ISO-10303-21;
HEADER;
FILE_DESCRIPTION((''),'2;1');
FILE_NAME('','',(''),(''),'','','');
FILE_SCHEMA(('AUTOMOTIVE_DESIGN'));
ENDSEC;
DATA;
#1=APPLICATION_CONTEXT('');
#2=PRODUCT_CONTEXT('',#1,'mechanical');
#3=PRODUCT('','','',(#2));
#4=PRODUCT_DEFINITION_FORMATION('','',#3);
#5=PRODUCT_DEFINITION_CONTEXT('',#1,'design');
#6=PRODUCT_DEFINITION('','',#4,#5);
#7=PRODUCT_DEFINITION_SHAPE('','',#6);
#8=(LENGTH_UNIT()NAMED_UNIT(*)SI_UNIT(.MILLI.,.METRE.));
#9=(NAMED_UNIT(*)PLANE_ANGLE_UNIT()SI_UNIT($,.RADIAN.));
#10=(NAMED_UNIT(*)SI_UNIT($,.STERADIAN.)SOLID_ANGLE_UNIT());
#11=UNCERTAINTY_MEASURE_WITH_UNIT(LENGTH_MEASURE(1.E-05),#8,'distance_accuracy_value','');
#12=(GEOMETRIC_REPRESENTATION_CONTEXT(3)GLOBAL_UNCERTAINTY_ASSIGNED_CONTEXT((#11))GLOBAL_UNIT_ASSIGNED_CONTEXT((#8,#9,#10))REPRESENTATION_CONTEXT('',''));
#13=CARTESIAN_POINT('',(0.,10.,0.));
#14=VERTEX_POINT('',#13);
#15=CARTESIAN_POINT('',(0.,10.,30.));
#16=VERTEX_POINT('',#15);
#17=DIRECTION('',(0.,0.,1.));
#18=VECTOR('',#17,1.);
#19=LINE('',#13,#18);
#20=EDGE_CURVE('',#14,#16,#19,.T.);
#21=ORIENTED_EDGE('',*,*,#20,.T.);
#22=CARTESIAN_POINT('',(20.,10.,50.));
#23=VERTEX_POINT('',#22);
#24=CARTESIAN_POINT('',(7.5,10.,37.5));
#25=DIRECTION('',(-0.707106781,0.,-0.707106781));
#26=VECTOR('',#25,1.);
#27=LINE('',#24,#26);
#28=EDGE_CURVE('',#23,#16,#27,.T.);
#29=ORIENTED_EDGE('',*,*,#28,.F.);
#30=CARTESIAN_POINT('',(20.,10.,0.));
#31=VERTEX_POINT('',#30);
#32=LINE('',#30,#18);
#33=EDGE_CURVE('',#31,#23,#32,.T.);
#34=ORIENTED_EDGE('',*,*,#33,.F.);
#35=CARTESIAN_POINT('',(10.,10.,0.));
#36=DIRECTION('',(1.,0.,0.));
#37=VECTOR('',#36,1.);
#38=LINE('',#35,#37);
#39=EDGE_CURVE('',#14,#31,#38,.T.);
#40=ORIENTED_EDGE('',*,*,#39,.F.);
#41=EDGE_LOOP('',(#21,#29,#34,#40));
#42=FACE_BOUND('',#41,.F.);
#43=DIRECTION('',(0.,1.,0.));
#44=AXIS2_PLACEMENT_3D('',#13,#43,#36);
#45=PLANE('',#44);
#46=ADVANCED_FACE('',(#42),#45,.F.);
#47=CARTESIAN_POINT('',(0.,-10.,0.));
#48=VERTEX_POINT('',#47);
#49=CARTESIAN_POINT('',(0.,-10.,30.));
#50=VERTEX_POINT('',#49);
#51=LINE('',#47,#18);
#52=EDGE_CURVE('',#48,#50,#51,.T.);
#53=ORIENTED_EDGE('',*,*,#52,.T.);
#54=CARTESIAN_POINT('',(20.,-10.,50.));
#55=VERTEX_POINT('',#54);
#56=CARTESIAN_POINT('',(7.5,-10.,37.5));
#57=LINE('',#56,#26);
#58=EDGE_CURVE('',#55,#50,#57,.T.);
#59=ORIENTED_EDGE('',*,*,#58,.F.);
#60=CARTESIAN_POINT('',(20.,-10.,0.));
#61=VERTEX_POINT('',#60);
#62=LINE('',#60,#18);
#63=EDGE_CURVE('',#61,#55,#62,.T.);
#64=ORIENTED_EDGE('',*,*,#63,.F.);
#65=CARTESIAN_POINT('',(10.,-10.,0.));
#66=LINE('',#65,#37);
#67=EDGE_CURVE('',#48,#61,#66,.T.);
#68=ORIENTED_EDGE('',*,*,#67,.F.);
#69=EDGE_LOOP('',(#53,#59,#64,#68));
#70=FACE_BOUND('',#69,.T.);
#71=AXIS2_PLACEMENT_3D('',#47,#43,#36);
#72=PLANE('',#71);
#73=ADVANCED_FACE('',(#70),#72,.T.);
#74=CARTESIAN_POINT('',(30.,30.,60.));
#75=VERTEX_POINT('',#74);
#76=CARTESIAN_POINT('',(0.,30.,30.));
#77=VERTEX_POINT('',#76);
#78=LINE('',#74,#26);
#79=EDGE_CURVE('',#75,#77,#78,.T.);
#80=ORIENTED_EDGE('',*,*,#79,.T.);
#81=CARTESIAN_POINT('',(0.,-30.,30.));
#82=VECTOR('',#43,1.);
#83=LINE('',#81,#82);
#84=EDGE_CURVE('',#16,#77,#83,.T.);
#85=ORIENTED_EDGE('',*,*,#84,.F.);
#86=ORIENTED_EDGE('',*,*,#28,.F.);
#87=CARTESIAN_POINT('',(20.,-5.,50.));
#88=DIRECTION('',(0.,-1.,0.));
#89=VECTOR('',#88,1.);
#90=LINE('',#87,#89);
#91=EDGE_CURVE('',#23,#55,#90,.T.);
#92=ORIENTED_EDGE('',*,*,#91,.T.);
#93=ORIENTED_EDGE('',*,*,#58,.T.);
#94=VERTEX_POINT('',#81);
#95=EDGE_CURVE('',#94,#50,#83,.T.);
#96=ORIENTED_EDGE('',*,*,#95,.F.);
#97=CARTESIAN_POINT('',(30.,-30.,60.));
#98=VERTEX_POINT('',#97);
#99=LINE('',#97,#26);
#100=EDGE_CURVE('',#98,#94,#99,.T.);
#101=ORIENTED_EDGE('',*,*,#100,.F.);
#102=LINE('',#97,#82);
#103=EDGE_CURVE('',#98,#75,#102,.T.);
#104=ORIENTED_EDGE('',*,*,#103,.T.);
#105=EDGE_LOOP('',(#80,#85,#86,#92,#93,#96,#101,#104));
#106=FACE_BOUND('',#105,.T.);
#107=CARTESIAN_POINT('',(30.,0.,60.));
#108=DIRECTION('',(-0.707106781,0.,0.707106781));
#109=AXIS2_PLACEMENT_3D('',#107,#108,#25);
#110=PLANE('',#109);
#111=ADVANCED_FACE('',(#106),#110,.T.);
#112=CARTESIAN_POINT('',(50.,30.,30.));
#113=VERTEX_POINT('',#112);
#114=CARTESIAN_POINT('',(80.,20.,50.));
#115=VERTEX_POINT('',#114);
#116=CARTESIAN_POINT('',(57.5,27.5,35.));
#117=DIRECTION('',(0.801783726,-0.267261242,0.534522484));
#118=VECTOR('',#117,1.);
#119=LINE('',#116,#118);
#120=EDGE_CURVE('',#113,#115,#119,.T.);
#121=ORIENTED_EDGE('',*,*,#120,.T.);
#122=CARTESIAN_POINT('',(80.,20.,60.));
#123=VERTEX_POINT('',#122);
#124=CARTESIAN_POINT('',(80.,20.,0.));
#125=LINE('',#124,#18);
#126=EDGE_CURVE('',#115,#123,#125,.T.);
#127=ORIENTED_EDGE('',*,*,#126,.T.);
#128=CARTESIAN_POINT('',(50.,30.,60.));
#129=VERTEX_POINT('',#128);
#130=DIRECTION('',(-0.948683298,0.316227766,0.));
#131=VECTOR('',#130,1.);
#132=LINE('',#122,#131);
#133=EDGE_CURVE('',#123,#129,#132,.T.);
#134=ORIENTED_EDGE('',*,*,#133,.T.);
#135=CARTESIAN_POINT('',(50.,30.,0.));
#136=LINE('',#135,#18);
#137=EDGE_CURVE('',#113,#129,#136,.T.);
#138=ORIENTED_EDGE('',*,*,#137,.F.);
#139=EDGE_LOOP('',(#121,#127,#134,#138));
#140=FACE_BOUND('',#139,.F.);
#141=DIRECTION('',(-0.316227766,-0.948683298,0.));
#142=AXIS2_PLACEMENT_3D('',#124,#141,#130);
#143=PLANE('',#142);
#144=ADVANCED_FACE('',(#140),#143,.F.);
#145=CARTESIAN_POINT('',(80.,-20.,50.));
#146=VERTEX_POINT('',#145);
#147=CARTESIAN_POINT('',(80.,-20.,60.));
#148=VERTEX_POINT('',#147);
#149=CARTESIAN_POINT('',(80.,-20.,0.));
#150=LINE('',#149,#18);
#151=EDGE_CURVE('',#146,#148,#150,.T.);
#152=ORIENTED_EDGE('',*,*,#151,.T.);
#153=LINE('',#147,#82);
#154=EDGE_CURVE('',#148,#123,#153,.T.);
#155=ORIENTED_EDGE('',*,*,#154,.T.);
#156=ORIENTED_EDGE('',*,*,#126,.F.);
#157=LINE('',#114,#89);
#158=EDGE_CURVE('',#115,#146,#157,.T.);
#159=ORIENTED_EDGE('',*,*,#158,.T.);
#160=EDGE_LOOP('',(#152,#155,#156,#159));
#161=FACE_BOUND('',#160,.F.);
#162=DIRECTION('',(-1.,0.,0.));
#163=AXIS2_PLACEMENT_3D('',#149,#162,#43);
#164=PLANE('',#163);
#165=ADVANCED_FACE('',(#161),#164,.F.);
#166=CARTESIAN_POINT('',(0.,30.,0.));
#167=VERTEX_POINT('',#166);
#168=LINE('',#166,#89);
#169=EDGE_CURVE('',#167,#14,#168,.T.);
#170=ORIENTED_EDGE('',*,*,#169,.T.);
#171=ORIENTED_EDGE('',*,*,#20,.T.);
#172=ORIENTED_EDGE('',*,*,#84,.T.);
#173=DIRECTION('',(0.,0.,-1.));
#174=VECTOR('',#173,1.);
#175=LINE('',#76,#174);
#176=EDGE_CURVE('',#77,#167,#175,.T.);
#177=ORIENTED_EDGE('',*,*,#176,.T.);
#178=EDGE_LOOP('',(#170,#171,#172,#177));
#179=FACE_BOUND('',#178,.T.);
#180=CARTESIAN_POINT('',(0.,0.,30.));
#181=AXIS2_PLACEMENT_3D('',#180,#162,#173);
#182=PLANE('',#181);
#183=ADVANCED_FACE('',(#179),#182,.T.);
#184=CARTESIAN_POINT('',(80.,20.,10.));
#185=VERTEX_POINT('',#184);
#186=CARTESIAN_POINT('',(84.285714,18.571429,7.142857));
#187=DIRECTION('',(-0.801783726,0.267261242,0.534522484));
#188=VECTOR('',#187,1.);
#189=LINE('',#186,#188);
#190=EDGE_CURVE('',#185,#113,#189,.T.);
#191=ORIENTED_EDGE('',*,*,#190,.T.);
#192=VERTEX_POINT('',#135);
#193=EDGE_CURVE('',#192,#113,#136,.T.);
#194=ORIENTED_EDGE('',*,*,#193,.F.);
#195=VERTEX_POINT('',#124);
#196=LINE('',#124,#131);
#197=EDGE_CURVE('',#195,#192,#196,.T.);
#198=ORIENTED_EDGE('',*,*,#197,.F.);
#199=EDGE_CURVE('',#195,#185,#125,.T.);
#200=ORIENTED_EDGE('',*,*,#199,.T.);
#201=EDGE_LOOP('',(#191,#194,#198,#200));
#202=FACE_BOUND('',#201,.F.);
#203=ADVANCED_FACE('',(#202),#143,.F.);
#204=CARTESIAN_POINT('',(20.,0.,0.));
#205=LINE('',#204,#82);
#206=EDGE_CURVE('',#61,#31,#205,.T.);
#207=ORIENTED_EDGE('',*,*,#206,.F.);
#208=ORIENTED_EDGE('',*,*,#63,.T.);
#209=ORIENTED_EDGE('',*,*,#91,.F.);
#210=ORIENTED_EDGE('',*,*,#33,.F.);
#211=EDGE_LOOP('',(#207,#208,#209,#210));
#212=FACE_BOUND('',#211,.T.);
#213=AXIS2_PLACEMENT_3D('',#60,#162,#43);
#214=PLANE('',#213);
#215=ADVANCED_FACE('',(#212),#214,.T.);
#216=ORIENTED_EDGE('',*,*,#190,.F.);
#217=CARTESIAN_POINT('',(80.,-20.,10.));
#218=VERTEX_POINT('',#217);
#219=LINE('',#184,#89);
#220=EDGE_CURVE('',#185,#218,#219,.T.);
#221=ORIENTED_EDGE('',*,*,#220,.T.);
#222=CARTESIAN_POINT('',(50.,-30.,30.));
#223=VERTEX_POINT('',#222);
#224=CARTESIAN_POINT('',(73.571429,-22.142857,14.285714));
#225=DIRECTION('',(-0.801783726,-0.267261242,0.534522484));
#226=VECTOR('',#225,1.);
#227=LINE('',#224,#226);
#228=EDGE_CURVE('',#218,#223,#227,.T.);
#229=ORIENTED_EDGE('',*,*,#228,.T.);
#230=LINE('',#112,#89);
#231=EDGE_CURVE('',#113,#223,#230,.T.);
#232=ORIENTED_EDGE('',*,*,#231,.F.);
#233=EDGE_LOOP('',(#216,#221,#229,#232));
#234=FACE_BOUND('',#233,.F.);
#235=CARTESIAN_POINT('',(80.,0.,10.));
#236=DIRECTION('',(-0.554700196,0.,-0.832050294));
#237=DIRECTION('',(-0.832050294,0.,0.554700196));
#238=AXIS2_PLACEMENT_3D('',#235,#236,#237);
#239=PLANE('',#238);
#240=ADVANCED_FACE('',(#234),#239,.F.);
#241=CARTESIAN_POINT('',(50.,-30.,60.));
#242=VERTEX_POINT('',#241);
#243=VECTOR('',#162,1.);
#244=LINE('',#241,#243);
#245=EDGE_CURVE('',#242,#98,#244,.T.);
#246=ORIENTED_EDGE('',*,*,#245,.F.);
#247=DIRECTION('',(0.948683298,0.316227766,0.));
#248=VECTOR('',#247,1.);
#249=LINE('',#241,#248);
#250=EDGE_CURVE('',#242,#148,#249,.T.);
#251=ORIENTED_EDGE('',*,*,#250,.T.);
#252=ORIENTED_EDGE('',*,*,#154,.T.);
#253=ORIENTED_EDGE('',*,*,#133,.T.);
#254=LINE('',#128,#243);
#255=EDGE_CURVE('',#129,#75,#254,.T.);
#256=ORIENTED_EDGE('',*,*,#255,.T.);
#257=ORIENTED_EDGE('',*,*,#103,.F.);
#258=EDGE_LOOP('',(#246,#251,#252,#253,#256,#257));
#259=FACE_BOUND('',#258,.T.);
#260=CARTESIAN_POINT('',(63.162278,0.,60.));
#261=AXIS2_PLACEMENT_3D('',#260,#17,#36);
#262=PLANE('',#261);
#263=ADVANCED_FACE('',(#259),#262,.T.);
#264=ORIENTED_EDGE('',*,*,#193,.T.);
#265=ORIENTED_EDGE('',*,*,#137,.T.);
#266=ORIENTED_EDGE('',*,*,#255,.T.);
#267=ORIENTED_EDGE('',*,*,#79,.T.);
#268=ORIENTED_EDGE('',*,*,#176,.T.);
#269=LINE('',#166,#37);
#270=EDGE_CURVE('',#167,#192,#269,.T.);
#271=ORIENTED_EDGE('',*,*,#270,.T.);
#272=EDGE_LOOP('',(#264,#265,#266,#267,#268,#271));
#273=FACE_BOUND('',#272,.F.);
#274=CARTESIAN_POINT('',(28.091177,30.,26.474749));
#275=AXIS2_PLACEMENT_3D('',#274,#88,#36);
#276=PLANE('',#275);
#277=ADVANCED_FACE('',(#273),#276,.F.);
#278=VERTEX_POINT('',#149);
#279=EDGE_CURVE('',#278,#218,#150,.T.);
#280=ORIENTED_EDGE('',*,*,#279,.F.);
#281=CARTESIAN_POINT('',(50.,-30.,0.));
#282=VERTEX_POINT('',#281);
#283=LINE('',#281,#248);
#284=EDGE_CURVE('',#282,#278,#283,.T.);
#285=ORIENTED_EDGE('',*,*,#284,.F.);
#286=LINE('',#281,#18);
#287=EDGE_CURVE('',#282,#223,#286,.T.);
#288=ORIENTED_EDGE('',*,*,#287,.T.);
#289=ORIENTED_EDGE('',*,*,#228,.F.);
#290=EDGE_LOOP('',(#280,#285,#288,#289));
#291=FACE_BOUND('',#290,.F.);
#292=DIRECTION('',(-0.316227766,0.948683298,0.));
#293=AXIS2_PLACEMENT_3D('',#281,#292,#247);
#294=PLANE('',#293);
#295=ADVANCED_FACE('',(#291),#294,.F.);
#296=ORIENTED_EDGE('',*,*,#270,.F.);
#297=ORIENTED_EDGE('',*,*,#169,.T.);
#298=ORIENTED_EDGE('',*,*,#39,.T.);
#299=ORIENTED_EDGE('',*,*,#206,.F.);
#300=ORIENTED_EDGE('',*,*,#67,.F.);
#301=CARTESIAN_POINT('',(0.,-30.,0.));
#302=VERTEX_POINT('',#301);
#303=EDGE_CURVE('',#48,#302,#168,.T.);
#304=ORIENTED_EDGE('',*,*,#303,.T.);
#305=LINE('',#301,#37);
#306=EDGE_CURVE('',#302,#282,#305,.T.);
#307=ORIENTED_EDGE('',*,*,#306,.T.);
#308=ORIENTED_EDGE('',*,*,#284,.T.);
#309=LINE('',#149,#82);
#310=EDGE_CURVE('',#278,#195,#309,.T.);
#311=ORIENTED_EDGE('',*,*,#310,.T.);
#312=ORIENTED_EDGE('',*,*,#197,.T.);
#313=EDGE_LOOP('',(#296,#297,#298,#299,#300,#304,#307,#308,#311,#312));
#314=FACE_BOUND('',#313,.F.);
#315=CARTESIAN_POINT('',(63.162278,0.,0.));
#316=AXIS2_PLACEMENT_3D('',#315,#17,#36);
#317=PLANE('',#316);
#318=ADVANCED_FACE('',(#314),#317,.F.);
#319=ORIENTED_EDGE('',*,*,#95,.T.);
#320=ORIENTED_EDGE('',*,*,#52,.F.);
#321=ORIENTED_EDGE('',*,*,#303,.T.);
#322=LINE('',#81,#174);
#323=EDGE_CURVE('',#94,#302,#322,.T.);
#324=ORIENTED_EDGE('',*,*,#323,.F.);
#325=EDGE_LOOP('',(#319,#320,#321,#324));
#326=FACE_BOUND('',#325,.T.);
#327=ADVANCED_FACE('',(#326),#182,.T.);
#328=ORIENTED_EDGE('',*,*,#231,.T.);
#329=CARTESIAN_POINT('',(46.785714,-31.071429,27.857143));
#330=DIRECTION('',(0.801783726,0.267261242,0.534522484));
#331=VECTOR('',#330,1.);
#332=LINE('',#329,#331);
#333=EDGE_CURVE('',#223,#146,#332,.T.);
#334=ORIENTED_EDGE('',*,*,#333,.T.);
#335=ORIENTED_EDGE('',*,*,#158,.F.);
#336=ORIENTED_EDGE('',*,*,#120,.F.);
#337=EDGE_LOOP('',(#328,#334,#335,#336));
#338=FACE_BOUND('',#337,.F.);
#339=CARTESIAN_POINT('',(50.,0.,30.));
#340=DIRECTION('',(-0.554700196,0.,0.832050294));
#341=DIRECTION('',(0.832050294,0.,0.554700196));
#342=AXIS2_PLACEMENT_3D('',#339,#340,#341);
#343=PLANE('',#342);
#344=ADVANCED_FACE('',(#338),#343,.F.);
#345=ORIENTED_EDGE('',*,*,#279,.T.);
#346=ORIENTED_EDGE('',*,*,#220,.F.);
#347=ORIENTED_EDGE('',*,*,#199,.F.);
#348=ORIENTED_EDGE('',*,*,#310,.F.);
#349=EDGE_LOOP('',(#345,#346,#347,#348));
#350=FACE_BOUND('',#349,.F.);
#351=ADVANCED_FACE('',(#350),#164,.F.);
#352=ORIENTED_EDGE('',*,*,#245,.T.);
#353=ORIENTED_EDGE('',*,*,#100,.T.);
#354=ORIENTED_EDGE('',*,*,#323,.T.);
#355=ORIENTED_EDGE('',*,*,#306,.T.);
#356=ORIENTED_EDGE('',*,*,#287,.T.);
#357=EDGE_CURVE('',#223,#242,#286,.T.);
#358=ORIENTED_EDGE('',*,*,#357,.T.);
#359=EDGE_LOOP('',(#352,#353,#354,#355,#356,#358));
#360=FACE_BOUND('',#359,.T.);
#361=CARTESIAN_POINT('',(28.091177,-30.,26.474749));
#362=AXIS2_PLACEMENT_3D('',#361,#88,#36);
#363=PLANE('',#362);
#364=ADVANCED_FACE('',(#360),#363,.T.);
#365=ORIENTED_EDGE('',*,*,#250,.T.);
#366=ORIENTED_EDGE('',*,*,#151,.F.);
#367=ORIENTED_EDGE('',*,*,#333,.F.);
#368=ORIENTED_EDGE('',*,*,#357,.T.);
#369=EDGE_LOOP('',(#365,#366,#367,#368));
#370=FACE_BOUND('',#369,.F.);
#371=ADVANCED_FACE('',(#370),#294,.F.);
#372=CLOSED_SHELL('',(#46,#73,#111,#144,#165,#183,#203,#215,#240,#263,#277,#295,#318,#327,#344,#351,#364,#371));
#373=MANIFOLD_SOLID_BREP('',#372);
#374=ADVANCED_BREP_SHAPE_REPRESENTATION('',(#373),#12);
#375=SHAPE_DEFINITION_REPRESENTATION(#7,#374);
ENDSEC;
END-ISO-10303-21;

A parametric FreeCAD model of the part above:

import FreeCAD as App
import Part
import Sketcher

V = App.Vector
Q = App.Units.Quantity

doc = App.newDocument("Part")
body = doc.addObject("PartDesign::Body", "Body")

sketch1 = body.newObject("Sketcher::SketchObject", "Sketch")
sketch1.AttachmentSupport = (doc.getObject("XZ_Plane"), [""])
sketch1.MapMode = "FlatFace"
sketch1.addGeometry(Part.LineSegment(V(0, 30, 0), V(0, 0, 0)), False)
sketch1.addGeometry(Part.LineSegment(V(0, 0, 0), V(50, 0, 0)), False)
sketch1.addGeometry(Part.LineSegment(V(50, 0, 0), V(50, 60, 0)), False)
sketch1.addGeometry(Part.LineSegment(V(50, 60, 0), V(30, 60, 0)), False)
sketch1.addGeometry(Part.LineSegment(V(30, 60, 0), V(0, 30, 0)), False)
sketch1.addConstraint(Sketcher.Constraint("Coincident", 0, 2, 1, 1))
sketch1.addConstraint(Sketcher.Constraint("Coincident", 1, 2, 2, 1))
sketch1.addConstraint(Sketcher.Constraint("Coincident", 2, 2, 3, 1))
sketch1.addConstraint(Sketcher.Constraint("Coincident", 3, 2, 4, 1))
sketch1.addConstraint(Sketcher.Constraint("Coincident", 4, 2, 0, 1))
sketch1.addConstraint(Sketcher.Constraint("Vertical", 0))
sketch1.addConstraint(Sketcher.Constraint("Horizontal", 1))
sketch1.addConstraint(Sketcher.Constraint("Vertical", 2))
sketch1.addConstraint(Sketcher.Constraint("Horizontal", 3))
sketch1.addConstraint(Sketcher.Constraint("Coincident", 0, 2, -1, 1))
sketch1.addConstraint(Sketcher.Constraint("DistanceX", 1, 1, 1, 2, Q("50 mm")))
sketch1.addConstraint(Sketcher.Constraint("DistanceX", 3, 2, 3, 1, Q("20 mm")))
sketch1.addConstraint(Sketcher.Constraint("DistanceY", 0, 2, 0, 1, Q("30 mm")))
sketch1.addConstraint(Sketcher.Constraint("DistanceY", 2, 1, 2, 2, Q("60 mm")))
pad1 = body.newObject("PartDesign::Pad", "Pad")
pad1.Profile = sketch1
pad1.Length = 60
pad1.Midplane = True

sketch2 = body.newObject("Sketcher::SketchObject", "Sketch001")
sketch2.AttachmentSupport = (doc.getObject("XY_Plane"), [""])
sketch2.MapMode = "FlatFace"
sketch2.addGeometry(Part.LineSegment(V(50, 30, 0), V(50, -30, 0)), False)
sketch2.addGeometry(Part.LineSegment(V(50, -30, 0), V(80, -20, 0)), False)
sketch2.addGeometry(Part.LineSegment(V(80, -20, 0), V(80, 20, 0)), False)
sketch2.addGeometry(Part.LineSegment(V(80, 20, 0), V(50, 30, 0)), False)
sketch2.addConstraint(Sketcher.Constraint("Coincident", 0, 2, 1, 1))
sketch2.addConstraint(Sketcher.Constraint("Coincident", 1, 2, 2, 1))
sketch2.addConstraint(Sketcher.Constraint("Coincident", 2, 2, 3, 1))
sketch2.addConstraint(Sketcher.Constraint("Coincident", 3, 2, 0, 1))
sketch2.addConstraint(Sketcher.Constraint("Vertical", 0))
sketch2.addConstraint(Sketcher.Constraint("Vertical", 2))
sketch2.addConstraint(Sketcher.Constraint("Equal", 1, 3))
sketch2.addConstraint(Sketcher.Constraint("DistanceY", 0, 2, 0, 1, Q("60 mm")))
sketch2.addConstraint(Sketcher.Constraint("DistanceY", 2, 1, 2, 2, Q("40 mm")))
sketch2.addConstraint(Sketcher.Constraint("DistanceX", -1, 1, 0, 2, Q("50 mm")))
sketch2.addConstraint(Sketcher.Constraint("DistanceY", 0, 2, -1, 1, Q("30 mm")))
sketch2.addConstraint(Sketcher.Constraint("DistanceX", -1, 1, 1, 2, Q("80 mm")))
pad2 = body.newObject("PartDesign::Pad", "Pad001")
pad2.Profile = sketch2
pad2.Length = 60

sketch3 = body.newObject("Sketcher::SketchObject", "Sketch002")
sketch3.AttachmentSupport = (doc.getObject("XZ_Plane"), [""])
sketch3.MapMode = "FlatFace"
sketch3.addGeometry(Part.LineSegment(V(80, 10, 0), V(80, 50, 0)), False)
sketch3.addGeometry(Part.LineSegment(V(80, 50, 0), V(50, 30, 0)), False)
sketch3.addGeometry(Part.LineSegment(V(50, 30, 0), V(80, 10, 0)), False)
sketch3.addConstraint(Sketcher.Constraint("Coincident", 0, 2, 1, 1))
sketch3.addConstraint(Sketcher.Constraint("Coincident", 1, 2, 2, 1))
sketch3.addConstraint(Sketcher.Constraint("Coincident", 2, 2, 0, 1))
sketch3.addConstraint(Sketcher.Constraint("Vertical", 0))
sketch3.addConstraint(Sketcher.Constraint("Equal", 1, 2))
sketch3.addConstraint(Sketcher.Constraint("DistanceY", 0, 1, 0, 2, Q("40 mm")))
sketch3.addConstraint(Sketcher.Constraint("DistanceX", -1, 1, 0, 2, Q("80 mm")))
sketch3.addConstraint(Sketcher.Constraint("DistanceY", -1, 1, 0, 2, Q("50 mm")))
sketch3.addConstraint(Sketcher.Constraint("DistanceX", -1, 1, 1, 2, Q("50 mm")))
pocket1 = body.newObject("PartDesign::Pocket", "Pocket")
pocket1.Profile = sketch3
pocket1.Type = "ThroughAll"
pocket1.Midplane = True

sketch4 = body.newObject("Sketcher::SketchObject", "Sketch003")
sketch4.AttachmentSupport = (doc.getObject("XY_Plane"), [""])
sketch4.MapMode = "FlatFace"
sketch4.addGeometry(Part.LineSegment(V(0, 10, 0), V(0, -10, 0)), False)
sketch4.addGeometry(Part.LineSegment(V(0, -10, 0), V(20, -10, 0)), False)
sketch4.addGeometry(Part.LineSegment(V(20, -10, 0), V(20, 10, 0)), False)
sketch4.addGeometry(Part.LineSegment(V(20, 10, 0), V(0, 10, 0)), False)
sketch4.addConstraint(Sketcher.Constraint("Coincident", 0, 2, 1, 1))
sketch4.addConstraint(Sketcher.Constraint("Coincident", 1, 2, 2, 1))
sketch4.addConstraint(Sketcher.Constraint("Coincident", 2, 2, 3, 1))
sketch4.addConstraint(Sketcher.Constraint("Coincident", 3, 2, 0, 1))
sketch4.addConstraint(Sketcher.Constraint("Vertical", 0))
sketch4.addConstraint(Sketcher.Constraint("Horizontal", 1))
sketch4.addConstraint(Sketcher.Constraint("Vertical", 2))
sketch4.addConstraint(Sketcher.Constraint("Horizontal", 3))
sketch4.addConstraint(Sketcher.Constraint("Symmetric", 0, 2, 3, 2, -1, 1))
sketch4.addConstraint(Sketcher.Constraint("Equal", 3, 0))
sketch4.addConstraint(Sketcher.Constraint("DistanceX", 1, 1, 1, 2, Q("20 mm")))
pocket2 = body.newObject("PartDesign::Pocket", "Pocket001")
pocket2.Profile = sketch4
pocket2.Type = "ThroughAll"
pocket2.Reversed = True

doc.recompute()
